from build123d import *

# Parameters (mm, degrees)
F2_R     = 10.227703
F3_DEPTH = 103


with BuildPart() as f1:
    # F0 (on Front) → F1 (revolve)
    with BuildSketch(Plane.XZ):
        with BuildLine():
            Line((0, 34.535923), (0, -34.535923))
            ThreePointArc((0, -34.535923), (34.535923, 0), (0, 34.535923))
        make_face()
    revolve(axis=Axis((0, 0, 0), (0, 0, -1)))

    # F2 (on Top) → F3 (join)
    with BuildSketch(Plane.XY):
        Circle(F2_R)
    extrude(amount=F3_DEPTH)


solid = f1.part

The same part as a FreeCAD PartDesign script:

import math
import FreeCAD as App
import Part
import Sketcher
from FreeCAD import Vector
Q = App.Units.Quantity

doc = App.newDocument("Part")
params = doc.addObject("Spreadsheet::Sheet", "Params")
for row, (alias, value) in enumerate([
    ("revolution_angle", "360 deg"),
    ("pad1_length", "103 mm"),
], start=1):
    params.set(f"A{row}", alias)
    params.set(f"B{row}", "=" + value)
    params.setAlias(f"B{row}", alias)

body = doc.addObject("PartDesign::Body", "Body")

# Sketch on XZ plane
sketch1 = body.newObject("Sketcher::SketchObject", "Sketch")
sketch1.AttachmentSupport = (doc.getObject("XZ_Plane"), [""])
sketch1.MapMode = "FlatFace"
sketch1.addGeometry([
    Part.LineSegment(Vector(0, 35, 0), Vector(0, -35, 0)),
    Part.ArcOfCircle(Part.Circle(Vector(0, 0, 0), Vector(0, 0, 1), 35), math.radians(-90), math.radians(90)),
], False)
sketch1.addConstraint([
    Sketcher.Constraint("Coincident", 0, 1, 1, 2),
    Sketcher.Constraint("Coincident", 1, 1, 0, 2),
    Sketcher.Constraint("Vertical", 0),
    Sketcher.Constraint("Coincident", 1, 3, -1, 1),
    Sketcher.Constraint("PointOnObject", 0, 1, -2),
    Sketcher.Constraint("Radius", 1, Q("34.535923 mm")),
])
revolution = body.newObject("PartDesign::Revolution", "Revolution")
revolution.Profile = sketch1
revolution.ReferenceAxis = (sketch1, ["V_Axis"])
revolution.setExpression("Angle", "Params.revolution_angle")

# Sketch on XY plane
sketch2 = body.newObject("Sketcher::SketchObject", "Sketch001")
sketch2.AttachmentSupport = (doc.getObject("XY_Plane"), [""])
sketch2.MapMode = "FlatFace"
sketch2.addGeometry(Part.Circle(Vector(0, 0, 0), Vector(0, 0, 1), 10), False)
sketch2.addConstraint([
    Sketcher.Constraint("Coincident", 0, 3, -1, 1),
    Sketcher.Constraint("Diameter", 0, Q("20.455406 mm")),
])
pad1 = body.newObject("PartDesign::Pad", "Pad")
pad1.Profile = sketch2
pad1.setExpression("Length", "Params.pad1_length")

doc.recompute()
